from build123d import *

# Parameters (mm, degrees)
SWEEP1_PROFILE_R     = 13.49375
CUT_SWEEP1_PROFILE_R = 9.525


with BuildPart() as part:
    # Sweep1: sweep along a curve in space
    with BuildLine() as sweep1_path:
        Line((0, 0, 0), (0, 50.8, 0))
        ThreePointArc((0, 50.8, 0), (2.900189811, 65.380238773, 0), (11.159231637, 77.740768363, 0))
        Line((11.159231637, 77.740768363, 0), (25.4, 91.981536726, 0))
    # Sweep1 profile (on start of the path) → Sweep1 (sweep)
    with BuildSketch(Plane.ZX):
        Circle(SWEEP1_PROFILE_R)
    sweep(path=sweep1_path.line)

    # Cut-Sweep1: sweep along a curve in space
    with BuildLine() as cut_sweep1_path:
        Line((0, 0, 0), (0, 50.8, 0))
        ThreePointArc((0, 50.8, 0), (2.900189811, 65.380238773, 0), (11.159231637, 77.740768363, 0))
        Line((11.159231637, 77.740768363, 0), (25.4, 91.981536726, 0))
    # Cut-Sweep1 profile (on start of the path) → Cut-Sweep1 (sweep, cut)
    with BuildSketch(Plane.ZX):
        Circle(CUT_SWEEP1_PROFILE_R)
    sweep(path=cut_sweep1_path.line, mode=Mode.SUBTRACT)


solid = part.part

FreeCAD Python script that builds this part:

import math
import FreeCAD as App
import Part
import Sketcher

V = App.Vector
Q = App.Units.Quantity

doc = App.newDocument("Part")
body = doc.addObject("PartDesign::Body", "Body")

# Sketch on XZ plane
sketch1 = body.newObject("Sketcher::SketchObject", "Sketch")
sketch1.AttachmentSupport = (doc.getObject("XZ_Plane"), [""])
sketch1.MapMode = "FlatFace"
sketch1.addGeometry(Part.Circle(V(0, 0, 0), V(0, 0, 1), 13), False)
sketch1.addConstraint(Sketcher.Constraint("Coincident", 0, 3, -1, 1))
sketch1.addConstraint(Sketcher.Constraint("Diameter", 0, Q("1.0625 in")))

# Sketch on XY plane
sketch2 = body.newObject("Sketcher::SketchObject", "Sketch001")
sketch2.AttachmentSupport = (doc.getObject("XY_Plane"), [""])
sketch2.MapMode = "FlatFace"
sketch2.addGeometry(Part.LineSegment(V(0, 0, 0), V(0, 51, 0)), False)
sketch2.addGeometry(Part.ArcOfCircle(Part.Circle(V(38, 51, 0), V(0, 0, 1), 38), math.radians(135), math.radians(180)), False)
sketch2.addGeometry(Part.LineSegment(V(11, 78, 0), V(25, 92, 0)), False)
sketch2.addConstraint(Sketcher.Constraint("Tangent", 0, 2, 1, 2))
sketch2.addConstraint(Sketcher.Constraint("Tangent", 1, 1, 2, 1))
sketch2.addConstraint(Sketcher.Constraint("Vertical", 0))
sketch2.addConstraint(Sketcher.Constraint("Coincident", 0, 1, -1, 1))
sketch2.addConstraint(Sketcher.Constraint("Radius", 1, Q("1.5 in")))
sketch2.addConstraint(Sketcher.Constraint("DistanceY", 0, 1, 0, 2, Q("2 in")))
sketch2.addConstraint(Sketcher.Constraint("DistanceX", -1, 1, 2, 2, Q("1 in")))
sketch2.addConstraint(Sketcher.Constraint("Angle", 2, Q("45 deg")))
doc.recompute()

additivepipe = body.newObject("PartDesign::AdditivePipe", "AdditivePipe")
additivepipe.Profile = sketch1
additivepipe.Spine = (sketch2, ["Edge1", "Edge2", "Edge3"])

# Sketch on XZ plane
sketch3 = body.newObject("Sketcher::SketchObject", "Sketch002")
sketch3.AttachmentSupport = (doc.getObject("XZ_Plane"), [""])
sketch3.MapMode = "FlatFace"
sketch3.addGeometry(Part.Circle(V(0, 0, 0), V(0, 0, 1), 10), False)
sketch3.addConstraint(Sketcher.Constraint("Coincident", 0, 3, -1, 1))
sketch3.addConstraint(Sketcher.Constraint("Diameter", 0, Q("0.75 in")))

# Sketch on XY plane
sketch4 = body.newObject("Sketcher::SketchObject", "Sketch003")
sketch4.AttachmentSupport = (doc.getObject("XY_Plane"), [""])
sketch4.MapMode = "FlatFace"
sketch4.addGeometry(Part.LineSegment(V(0, 0, 0), V(0, 51, 0)), False)
sketch4.addGeometry(Part.ArcOfCircle(Part.Circle(V(38, 51, 0), V(0, 0, 1), 38), math.radians(135), math.radians(180)), False)
sketch4.addGeometry(Part.LineSegment(V(11, 78, 0), V(25, 92, 0)), False)
sketch4.addConstraint(Sketcher.Constraint("Tangent", 0, 2, 1, 2))
sketch4.addConstraint(Sketcher.Constraint("Tangent", 1, 1, 2, 1))
sketch4.addConstraint(Sketcher.Constraint("Vertical", 0))
sketch4.addConstraint(Sketcher.Constraint("Coincident", 0, 1, -1, 1))
sketch4.addConstraint(Sketcher.Constraint("Radius", 1, Q("1.5 in")))
sketch4.addConstraint(Sketcher.Constraint("DistanceY", 0, 1, 0, 2, Q("2 in")))
sketch4.addConstraint(Sketcher.Constraint("DistanceX", -1, 1, 2, 2, Q("1 in")))
sketch4.addConstraint(Sketcher.Constraint("Angle", 2, Q("45 deg")))
doc.recompute()

subtractivepipe = body.newObject("PartDesign::SubtractivePipe", "SubtractivePipe")
subtractivepipe.Profile = sketch3
subtractivepipe.Spine = (sketch4, ["Edge1", "Edge2", "Edge3"])

doc.recompute()
